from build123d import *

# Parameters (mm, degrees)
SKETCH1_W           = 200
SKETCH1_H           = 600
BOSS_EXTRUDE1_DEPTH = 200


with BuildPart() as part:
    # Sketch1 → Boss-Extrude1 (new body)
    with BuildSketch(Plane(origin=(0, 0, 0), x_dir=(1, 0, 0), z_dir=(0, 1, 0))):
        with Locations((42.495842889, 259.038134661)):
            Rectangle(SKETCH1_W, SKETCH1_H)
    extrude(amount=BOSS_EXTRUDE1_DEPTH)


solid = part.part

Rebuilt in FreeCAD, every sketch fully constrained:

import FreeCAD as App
import Part
import Sketcher
from FreeCAD import Vector
Q = App.Units.Quantity

doc = App.newDocument("Part")
body = doc.addObject("PartDesign::Body", "Body")

# Sketch on XZ plane
sketch1 = body.newObject("Sketcher::SketchObject", "Sketch")
sketch1.AttachmentSupport = (doc.getObject("XZ_Plane"), [""])
sketch1.MapMode = "FlatFace"
sketch1.addGeometry([
    Part.LineSegment(Vector(-58, -559, 0), Vector(-58, 41, 0)),
    Part.LineSegment(Vector(-58, 41, 0), Vector(142, 41, 0)),
    Part.LineSegment(Vector(142, 41, 0), Vector(142, -559, 0)),
    Part.LineSegment(Vector(142, -559, 0), Vector(-58, -559, 0)),
], False)
sketch1.addConstraint([
    Sketcher.Constraint("Coincident", 0, 2, 1, 1),
    Sketcher.Constraint("Coincident", 1, 2, 2, 1),
    Sketcher.Constraint("Coincident", 2, 2, 3, 1),
    Sketcher.Constraint("Coincident", 3, 2, 0, 1),
    Sketcher.Constraint("Vertical", 0),
    Sketcher.Constraint("Horizontal", 1),
    Sketcher.Constraint("Vertical", 2),
    Sketcher.Constraint("Horizontal", 3),
    Sketcher.Constraint("DistanceX", 1, 1, 1, 2, Q("200 mm")),
    Sketcher.Constraint("DistanceY", 0, 1, 0, 2, Q("600 mm")),
    Sketcher.Constraint("DistanceX", 0, 2, -1, 1, Q("57.504157 mm")),
    Sketcher.Constraint("DistanceY", -1, 1, 0, 2, Q("40.961865 mm")),
])
pad1 = body.newObject("PartDesign::Pad", "Pad")
pad1.Profile = sketch1
pad1.Length = 200
pad1.Reversed = True

doc.recompute()
